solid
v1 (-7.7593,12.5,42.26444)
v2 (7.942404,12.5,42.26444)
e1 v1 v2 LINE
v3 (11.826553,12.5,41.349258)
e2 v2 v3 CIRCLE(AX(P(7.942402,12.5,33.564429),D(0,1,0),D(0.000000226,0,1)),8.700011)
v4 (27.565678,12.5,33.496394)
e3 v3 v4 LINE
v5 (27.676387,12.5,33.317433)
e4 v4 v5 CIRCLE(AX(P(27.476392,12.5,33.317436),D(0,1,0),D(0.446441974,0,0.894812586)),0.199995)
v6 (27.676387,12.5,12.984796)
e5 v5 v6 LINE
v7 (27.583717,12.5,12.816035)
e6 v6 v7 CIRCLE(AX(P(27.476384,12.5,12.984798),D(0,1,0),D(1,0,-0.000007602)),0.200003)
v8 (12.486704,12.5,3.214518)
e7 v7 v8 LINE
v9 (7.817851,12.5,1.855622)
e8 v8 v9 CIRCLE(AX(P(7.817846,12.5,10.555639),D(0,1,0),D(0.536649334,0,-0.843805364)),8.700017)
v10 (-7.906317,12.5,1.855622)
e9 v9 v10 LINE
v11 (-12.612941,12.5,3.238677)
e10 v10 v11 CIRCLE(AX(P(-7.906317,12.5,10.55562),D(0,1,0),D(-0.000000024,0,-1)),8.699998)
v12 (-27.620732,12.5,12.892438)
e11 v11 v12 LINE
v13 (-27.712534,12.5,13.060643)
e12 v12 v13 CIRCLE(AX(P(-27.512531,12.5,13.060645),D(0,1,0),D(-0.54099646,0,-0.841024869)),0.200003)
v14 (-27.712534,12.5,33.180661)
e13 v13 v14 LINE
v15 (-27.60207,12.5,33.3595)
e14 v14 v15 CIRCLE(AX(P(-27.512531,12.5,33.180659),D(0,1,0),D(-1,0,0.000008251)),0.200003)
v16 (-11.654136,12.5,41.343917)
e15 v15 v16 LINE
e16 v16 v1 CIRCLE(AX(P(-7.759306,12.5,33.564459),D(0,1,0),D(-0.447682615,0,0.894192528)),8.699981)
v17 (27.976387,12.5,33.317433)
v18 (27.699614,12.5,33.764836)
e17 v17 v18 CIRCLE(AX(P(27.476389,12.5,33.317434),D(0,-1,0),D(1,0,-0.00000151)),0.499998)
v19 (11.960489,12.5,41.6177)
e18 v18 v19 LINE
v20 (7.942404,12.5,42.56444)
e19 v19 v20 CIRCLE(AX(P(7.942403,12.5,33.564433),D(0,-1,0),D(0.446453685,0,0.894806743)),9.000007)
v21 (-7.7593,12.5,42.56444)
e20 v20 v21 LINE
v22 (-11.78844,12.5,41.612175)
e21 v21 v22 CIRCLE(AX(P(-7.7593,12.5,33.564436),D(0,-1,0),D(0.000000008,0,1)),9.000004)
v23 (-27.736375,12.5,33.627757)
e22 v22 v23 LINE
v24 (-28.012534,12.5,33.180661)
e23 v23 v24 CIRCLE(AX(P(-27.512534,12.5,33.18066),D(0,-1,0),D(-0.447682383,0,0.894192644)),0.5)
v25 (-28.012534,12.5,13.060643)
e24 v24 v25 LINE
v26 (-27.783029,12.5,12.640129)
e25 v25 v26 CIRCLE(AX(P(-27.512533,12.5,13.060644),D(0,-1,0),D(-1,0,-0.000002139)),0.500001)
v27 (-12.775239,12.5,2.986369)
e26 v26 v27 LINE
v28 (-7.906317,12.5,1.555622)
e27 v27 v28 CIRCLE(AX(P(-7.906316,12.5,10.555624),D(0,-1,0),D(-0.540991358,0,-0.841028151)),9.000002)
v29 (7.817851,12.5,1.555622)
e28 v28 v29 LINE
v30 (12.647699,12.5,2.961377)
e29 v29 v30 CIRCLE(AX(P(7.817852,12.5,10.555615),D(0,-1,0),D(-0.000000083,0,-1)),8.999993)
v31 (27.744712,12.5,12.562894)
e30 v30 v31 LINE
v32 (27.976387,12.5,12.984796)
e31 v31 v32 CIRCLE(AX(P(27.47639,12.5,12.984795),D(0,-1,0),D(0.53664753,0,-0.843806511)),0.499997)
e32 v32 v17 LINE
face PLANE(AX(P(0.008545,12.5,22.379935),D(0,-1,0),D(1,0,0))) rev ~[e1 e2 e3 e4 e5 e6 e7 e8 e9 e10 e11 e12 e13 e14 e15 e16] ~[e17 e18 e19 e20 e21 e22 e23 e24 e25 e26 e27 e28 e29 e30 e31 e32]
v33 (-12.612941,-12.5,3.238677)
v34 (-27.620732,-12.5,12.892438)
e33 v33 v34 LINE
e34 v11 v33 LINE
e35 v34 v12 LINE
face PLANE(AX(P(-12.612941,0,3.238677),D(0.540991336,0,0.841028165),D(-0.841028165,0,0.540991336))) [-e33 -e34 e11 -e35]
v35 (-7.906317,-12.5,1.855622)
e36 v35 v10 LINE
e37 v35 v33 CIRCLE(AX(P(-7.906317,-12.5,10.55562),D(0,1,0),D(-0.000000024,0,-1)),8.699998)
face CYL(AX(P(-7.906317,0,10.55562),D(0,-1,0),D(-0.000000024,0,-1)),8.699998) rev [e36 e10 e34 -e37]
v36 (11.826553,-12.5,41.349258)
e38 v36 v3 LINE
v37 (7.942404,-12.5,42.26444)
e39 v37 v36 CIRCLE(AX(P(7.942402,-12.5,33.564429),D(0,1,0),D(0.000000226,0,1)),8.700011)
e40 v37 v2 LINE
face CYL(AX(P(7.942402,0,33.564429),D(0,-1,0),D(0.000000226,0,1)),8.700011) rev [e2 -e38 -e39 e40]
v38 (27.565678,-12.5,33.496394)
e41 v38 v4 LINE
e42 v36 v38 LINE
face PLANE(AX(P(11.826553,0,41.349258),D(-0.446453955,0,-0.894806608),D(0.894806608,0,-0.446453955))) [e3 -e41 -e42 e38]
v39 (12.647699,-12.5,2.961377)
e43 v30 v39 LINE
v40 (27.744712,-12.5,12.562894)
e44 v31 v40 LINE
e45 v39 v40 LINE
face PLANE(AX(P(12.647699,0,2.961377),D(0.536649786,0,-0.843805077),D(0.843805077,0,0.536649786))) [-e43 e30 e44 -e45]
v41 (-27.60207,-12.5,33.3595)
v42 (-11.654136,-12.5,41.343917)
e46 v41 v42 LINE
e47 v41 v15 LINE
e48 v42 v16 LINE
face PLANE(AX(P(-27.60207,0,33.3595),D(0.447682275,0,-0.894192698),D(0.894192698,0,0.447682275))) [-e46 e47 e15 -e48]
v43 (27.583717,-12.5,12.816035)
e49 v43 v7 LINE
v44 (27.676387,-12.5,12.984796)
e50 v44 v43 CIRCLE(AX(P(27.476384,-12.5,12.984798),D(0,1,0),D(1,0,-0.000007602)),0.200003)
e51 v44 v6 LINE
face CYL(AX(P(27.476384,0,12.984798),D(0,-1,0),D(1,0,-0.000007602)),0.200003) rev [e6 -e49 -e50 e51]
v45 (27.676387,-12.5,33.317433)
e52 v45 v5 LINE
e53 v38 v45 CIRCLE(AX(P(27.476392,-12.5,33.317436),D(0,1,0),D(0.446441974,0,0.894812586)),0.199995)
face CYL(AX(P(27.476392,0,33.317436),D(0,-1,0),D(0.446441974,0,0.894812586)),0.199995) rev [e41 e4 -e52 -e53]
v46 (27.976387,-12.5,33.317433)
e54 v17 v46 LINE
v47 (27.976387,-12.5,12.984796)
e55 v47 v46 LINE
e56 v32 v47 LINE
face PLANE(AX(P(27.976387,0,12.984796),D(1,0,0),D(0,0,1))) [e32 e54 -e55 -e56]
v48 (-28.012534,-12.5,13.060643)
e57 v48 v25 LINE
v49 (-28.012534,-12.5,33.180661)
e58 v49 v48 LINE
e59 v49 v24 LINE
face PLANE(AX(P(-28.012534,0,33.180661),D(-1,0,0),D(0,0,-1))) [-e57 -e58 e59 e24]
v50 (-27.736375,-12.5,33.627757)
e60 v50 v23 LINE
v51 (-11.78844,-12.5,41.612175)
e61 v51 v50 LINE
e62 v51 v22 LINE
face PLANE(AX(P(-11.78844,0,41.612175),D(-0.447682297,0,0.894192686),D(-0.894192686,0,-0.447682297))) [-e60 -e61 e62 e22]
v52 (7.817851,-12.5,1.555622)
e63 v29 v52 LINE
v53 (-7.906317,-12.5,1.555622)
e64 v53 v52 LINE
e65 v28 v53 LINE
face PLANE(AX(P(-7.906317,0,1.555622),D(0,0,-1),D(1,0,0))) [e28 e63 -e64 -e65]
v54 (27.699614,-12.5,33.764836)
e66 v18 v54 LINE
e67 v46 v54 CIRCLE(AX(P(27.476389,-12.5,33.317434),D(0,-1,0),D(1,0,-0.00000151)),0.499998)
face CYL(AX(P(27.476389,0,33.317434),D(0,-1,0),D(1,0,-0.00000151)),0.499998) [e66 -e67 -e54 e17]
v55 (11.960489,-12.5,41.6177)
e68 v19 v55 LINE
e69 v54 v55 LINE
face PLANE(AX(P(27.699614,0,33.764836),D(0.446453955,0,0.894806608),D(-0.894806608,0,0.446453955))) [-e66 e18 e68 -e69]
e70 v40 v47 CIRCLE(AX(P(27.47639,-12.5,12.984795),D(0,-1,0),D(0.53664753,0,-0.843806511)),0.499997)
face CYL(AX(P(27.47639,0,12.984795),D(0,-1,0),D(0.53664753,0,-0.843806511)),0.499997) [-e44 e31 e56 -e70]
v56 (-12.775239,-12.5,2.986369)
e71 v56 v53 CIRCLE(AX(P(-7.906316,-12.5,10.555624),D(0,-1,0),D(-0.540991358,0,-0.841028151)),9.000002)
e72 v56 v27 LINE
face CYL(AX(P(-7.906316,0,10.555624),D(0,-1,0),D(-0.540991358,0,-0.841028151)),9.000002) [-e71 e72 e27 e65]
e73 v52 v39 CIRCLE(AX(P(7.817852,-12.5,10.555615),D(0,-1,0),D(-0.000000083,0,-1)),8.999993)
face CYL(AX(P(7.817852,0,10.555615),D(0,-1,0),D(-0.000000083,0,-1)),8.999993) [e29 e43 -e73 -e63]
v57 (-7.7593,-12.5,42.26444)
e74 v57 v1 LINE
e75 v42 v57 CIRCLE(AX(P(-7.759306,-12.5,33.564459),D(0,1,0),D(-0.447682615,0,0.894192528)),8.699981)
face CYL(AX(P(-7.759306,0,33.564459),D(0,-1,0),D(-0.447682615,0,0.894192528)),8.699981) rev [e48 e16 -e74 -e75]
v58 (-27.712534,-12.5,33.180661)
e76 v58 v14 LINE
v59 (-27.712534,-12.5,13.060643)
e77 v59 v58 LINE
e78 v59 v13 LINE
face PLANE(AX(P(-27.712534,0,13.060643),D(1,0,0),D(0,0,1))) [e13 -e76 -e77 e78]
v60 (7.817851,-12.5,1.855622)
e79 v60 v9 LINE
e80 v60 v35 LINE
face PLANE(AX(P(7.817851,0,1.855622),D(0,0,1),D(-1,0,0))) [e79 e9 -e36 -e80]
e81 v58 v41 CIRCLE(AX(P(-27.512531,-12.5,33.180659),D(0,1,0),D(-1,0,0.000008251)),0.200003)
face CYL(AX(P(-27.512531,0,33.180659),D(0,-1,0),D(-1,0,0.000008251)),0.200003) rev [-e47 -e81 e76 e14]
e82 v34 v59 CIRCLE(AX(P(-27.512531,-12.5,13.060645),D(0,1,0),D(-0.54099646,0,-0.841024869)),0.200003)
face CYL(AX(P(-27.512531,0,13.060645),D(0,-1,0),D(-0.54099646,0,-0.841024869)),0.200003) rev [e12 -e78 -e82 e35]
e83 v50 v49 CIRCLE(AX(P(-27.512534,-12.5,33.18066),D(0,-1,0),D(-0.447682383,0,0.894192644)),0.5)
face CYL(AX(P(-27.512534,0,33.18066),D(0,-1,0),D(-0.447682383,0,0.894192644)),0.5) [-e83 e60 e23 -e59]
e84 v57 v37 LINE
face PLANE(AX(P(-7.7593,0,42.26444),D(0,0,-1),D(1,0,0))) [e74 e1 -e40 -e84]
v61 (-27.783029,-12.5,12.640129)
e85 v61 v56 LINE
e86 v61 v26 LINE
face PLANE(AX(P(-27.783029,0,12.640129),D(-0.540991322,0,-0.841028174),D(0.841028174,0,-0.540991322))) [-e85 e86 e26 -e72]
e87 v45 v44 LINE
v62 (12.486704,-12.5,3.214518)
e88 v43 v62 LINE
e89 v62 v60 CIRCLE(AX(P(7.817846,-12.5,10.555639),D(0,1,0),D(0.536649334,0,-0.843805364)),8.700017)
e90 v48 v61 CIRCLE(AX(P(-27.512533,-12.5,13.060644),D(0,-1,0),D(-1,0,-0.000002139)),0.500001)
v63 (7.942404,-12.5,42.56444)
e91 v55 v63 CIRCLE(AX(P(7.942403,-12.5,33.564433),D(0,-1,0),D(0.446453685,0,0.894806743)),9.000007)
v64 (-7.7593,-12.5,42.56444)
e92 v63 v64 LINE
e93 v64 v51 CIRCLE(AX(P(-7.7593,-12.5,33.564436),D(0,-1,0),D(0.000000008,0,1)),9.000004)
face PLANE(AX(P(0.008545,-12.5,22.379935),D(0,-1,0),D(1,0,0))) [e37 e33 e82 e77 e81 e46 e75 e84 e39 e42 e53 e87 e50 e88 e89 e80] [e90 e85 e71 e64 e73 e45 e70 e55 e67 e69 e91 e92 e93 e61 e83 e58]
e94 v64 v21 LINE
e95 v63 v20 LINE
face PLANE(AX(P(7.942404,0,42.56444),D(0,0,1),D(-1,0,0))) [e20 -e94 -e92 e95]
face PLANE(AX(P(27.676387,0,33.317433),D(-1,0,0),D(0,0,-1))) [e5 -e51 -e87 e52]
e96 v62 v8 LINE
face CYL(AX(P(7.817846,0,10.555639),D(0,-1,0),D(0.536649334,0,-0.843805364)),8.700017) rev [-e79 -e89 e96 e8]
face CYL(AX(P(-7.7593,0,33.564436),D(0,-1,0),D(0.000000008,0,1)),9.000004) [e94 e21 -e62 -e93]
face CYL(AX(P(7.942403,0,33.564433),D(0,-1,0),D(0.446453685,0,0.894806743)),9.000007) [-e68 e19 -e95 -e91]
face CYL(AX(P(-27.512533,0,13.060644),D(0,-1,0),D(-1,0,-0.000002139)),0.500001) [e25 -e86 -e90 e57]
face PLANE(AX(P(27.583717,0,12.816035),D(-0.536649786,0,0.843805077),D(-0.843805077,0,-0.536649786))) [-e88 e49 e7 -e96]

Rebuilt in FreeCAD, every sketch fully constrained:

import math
import FreeCAD as App
import Part
import Sketcher
Q = App.Units.Quantity

doc = App.newDocument("Part")
body = doc.addObject("PartDesign::Body", "Body")

# Sketch on XZ plane
sketch1 = doc.addObject("Sketcher::SketchObject", "Sketch")
body.addObject(sketch1)
sketch1.AttachmentSupport = (doc.XZ_Plane, [""])
sketch1.MapMode = "FlatFace"
sketch1.addGeometry([
    Part.ArcOfCircle(Part.Circle(App.Vector(-7.906316, 10.555624, 0), App.Vector(0, 0, 1), 9.000002), math.radians(-122.75115), math.radians(-90.000009)),  # 0
    Part.LineSegment(App.Vector(-7.906317, 1.555622, 0), App.Vector(7.817851, 1.555622, 0)),  # 1
    Part.ArcOfCircle(Part.Circle(App.Vector(7.817852, 10.555615, 0), App.Vector(0, 0, 1), 8.999993), math.radians(-90.000005), math.radians(-57.544115)),  # 2
    Part.LineSegment(App.Vector(12.647699, 2.961377, 0), App.Vector(27.744712, 12.562894, 0)),  # 3
    Part.ArcOfCircle(Part.Circle(App.Vector(27.47639, 12.984795, 0), App.Vector(0, 0, 1), 0.499997), math.radians(-57.544288), math.radians(0.000114)),  # 4
    Part.LineSegment(App.Vector(27.976387, 12.984796, 0), App.Vector(27.976387, 33.317433, 0)),  # 5
    Part.ArcOfCircle(Part.Circle(App.Vector(27.476389, 33.317434, 0), App.Vector(0, 0, 1), 0.499998), math.radians(-0.000087), math.radians(63.483717)),  # 6
    Part.LineSegment(App.Vector(27.699614, 33.764836, 0), App.Vector(11.960489, 41.6177, 0)),  # 7
    Part.ArcOfCircle(Part.Circle(App.Vector(7.942403, 33.564433, 0), App.Vector(0, 0, 1), 9.000007), math.radians(63.483617), math.radians(89.999993)),  # 8
    Part.LineSegment(App.Vector(7.942404, 42.56444, 0), App.Vector(-7.7593, 42.56444, 0)),  # 9
    Part.ArcOfCircle(Part.Circle(App.Vector(-7.7593, 33.564436, 0), App.Vector(0, 0, 1), 9.000004), math.radians(90), math.radians(116.595062)),  # 10
    Part.LineSegment(App.Vector(-11.78844, 41.612175, 0), App.Vector(-27.736375, 33.627757, 0)),  # 11
    Part.ArcOfCircle(Part.Circle(App.Vector(-27.512534, 33.18066, 0), App.Vector(0, 0, 1), 0.5), math.radians(116.595085), math.radians(179.999928)),  # 12
    Part.LineSegment(App.Vector(-28.012534, 33.180661, 0), App.Vector(-28.012534, 13.060643, 0)),  # 13
    Part.ArcOfCircle(Part.Circle(App.Vector(-27.512533, 13.060644, 0), App.Vector(0, 0, 1), 0.500001), math.radians(-179.999877), math.radians(-122.751122)),  # 14
    Part.LineSegment(App.Vector(-27.783029, 12.640129, 0), App.Vector(-12.775239, 2.986369, 0)),  # 15
    Part.ArcOfCircle(Part.Circle(App.Vector(-7.906317, 10.55562, 0), App.Vector(0, 0, 1), 8.699998), math.radians(-122.751152), math.radians(-90.000001)),  # 16
    Part.LineSegment(App.Vector(-12.612941, 3.238677, 0), App.Vector(-27.620732, 12.892438, 0)),  # 17
    Part.ArcOfCircle(Part.Circle(App.Vector(-27.512531, 13.060645, 0), App.Vector(0, 0, 1), 0.200003), math.radians(-179.999329), math.radians(-122.751498)),  # 18
    Part.LineSegment(App.Vector(-27.712534, 13.060643, 0), App.Vector(-27.712534, 33.180661, 0)),  # 19
    Part.ArcOfCircle(Part.Circle(App.Vector(-27.512531, 33.180659, 0), App.Vector(0, 0, 1), 0.200003), math.radians(116.595472), math.radians(179.999527)),  # 20
    Part.LineSegment(App.Vector(-27.60207, 33.3595, 0), App.Vector(-11.654136, 41.343917, 0)),  # 21
    Part.ArcOfCircle(Part.Circle(App.Vector(-7.759306, 33.564459, 0), App.Vector(0, 0, 1), 8.699981), math.radians(89.999962), math.radians(116.5951)),  # 22
    Part.LineSegment(App.Vector(-7.7593, 42.26444, 0), App.Vector(7.942404, 42.26444, 0)),  # 23
    Part.ArcOfCircle(Part.Circle(App.Vector(7.942402, 33.564429, 0), App.Vector(0, 0, 1), 8.700011), math.radians(63.483624), math.radians(89.999987)),  # 24
    Part.LineSegment(App.Vector(11.826553, 41.349258, 0), App.Vector(27.565678, 33.496394, 0)),  # 25
    Part.ArcOfCircle(Part.Circle(App.Vector(27.476392, 33.317436, 0), App.Vector(0, 0, 1), 0.199995), math.radians(-0.000772), math.radians(63.484367)),  # 26
    Part.LineSegment(App.Vector(27.676387, 33.317433, 0), App.Vector(27.676387, 12.984796, 0)),  # 27
    Part.ArcOfCircle(Part.Circle(App.Vector(27.476384, 12.984798, 0), App.Vector(0, 0, 1), 0.200003), math.radians(-57.543681), math.radians(-0.000435)),  # 28
    Part.LineSegment(App.Vector(27.583717, 12.816035, 0), App.Vector(12.486704, 3.214518, 0)),  # 29
    Part.ArcOfCircle(Part.Circle(App.Vector(7.817846, 10.555639, 0), App.Vector(0, 0, 1), 8.700017), math.radians(-89.999965), math.radians(-57.544166)),  # 30
    Part.LineSegment(App.Vector(7.817851, 1.855622, 0), App.Vector(-7.906317, 1.855622, 0)),  # 31
], False)
sketch1.addConstraint([
    Sketcher.Constraint("Coincident", 0, 2, 1, 1),
    Sketcher.Constraint("Coincident", 1, 2, 2, 1),
    Sketcher.Constraint("Coincident", 2, 2, 3, 1),
    Sketcher.Constraint("Coincident", 3, 2, 4, 1),
    Sketcher.Constraint("Coincident", 4, 2, 5, 1),
    Sketcher.Constraint("Coincident", 5, 2, 6, 1),
    Sketcher.Constraint("Coincident", 6, 2, 7, 1),
    Sketcher.Constraint("Coincident", 7, 2, 8, 1),
    Sketcher.Constraint("Coincident", 8, 2, 9, 1),
    Sketcher.Constraint("Coincident", 9, 2, 10, 1),
    Sketcher.Constraint("Coincident", 10, 2, 11, 1),
    Sketcher.Constraint("Coincident", 11, 2, 12, 1),
    Sketcher.Constraint("Coincident", 12, 2, 13, 1),
    Sketcher.Constraint("Coincident", 13, 2, 14, 1),
    Sketcher.Constraint("Coincident", 14, 2, 15, 1),
    Sketcher.Constraint("Coincident", 15, 2, 0, 1),
    Sketcher.Constraint("Coincident", 16, 1, 17, 1),
    Sketcher.Constraint("Coincident", 17, 2, 18, 2),
    Sketcher.Constraint("Coincident", 18, 1, 19, 1),
    Sketcher.Constraint("Coincident", 19, 2, 20, 2),
    Sketcher.Constraint("Coincident", 20, 1, 21, 1),
    Sketcher.Constraint("Coincident", 21, 2, 22, 2),
    Sketcher.Constraint("Coincident", 22, 1, 23, 1),
    Sketcher.Constraint("Coincident", 23, 2, 24, 2),
    Sketcher.Constraint("Coincident", 24, 1, 25, 1),
    Sketcher.Constraint("Coincident", 25, 2, 26, 2),
    Sketcher.Constraint("Coincident", 26, 1, 27, 1),
    Sketcher.Constraint("Coincident", 27, 2, 28, 2),
    Sketcher.Constraint("Coincident", 28, 1, 29, 1),
    Sketcher.Constraint("Coincident", 29, 2, 30, 2),
    Sketcher.Constraint("Coincident", 30, 1, 31, 1),
    Sketcher.Constraint("Coincident", 31, 2, 16, 2),
    Sketcher.Constraint("Horizontal", 1),
    Sketcher.Constraint("Vertical", 5),
    Sketcher.Constraint("Horizontal", 9),
    Sketcher.Constraint("Vertical", 13),
    Sketcher.Constraint("Vertical", 19),
    Sketcher.Constraint("Horizontal", 23),
    Sketcher.Constraint("Vertical", 27),
    Sketcher.Constraint("Horizontal", 31),
    Sketcher.Constraint("Coincident", 16, 3, 0, 3),
    Sketcher.Constraint("Coincident", 18, 3, 14, 3),
    Sketcher.Constraint("Coincident", 20, 3, 12, 3),
    Sketcher.Constraint("Coincident", 24, 3, 8, 3),
    Sketcher.Constraint("Coincident", 26, 3, 6, 3),
    Sketcher.Constraint("Coincident", 28, 3, 4, 3),
    Sketcher.Constraint("Radius", 6, Q("0.499998 mm")),
    Sketcher.Constraint("Radius", 12, Q("0.5 mm")),
    Sketcher.Constraint("Radius", 14, Q("0.500001 mm")),
    Sketcher.Constraint("Radius", 16, Q("8.699998 mm")),
    Sketcher.Constraint("DistanceY", 0, 2, 16, 3, Q("8.999998 mm")),
    Sketcher.Constraint("DistanceX", 18, 1, 14, 3, Q("0.200001 mm")),
    Sketcher.Constraint("DistanceY", 22, 1, 9, 2, Q("0.3 mm")),
    Sketcher.Constraint("DistanceX", 6, 3, 26, 1, Q("0.199998 mm")),
    Sketcher.Constraint("Radius", 22, Q("8.699981 mm")),
    Sketcher.Constraint("Radius", 24, Q("8.700011 mm")),
    Sketcher.Constraint("Radius", 2, Q("8.999993 mm")),
    Sketcher.Constraint("Radius", 4, Q("0.499997 mm")),
    Sketcher.Constraint("Radius", 10, Q("9.000004 mm")),
    Sketcher.Constraint("Radius", 30, Q("8.700017 mm")),
    Sketcher.Constraint("DistanceY", 6, 3, 8, 3, Q("0.247 mm")),
    Sketcher.Constraint("DistanceY", 5, 2, 8, 3, Q("0.247 mm")),
    Sketcher.Constraint("DistanceY", 13, 2, 13, 1, Q("20.120018 mm")),
    Sketcher.Constraint("DistanceY", 19, 1, 19, 2, Q("20.120018 mm")),
    Sketcher.Constraint("DistanceX", 10, 3, -1, 1, Q("7.7593 mm")),
    Sketcher.Constraint("DistanceX", -1, 1, 2, 2, Q("12.647699 mm")),
    Sketcher.Constraint("DistanceY", -1, 1, 7, 2, Q("41.6177 mm")),
    Sketcher.Constraint("DistanceX", 9, 2, -1, 1, Q("7.7593 mm")),
    Sketcher.Constraint("DistanceY", -1, 1, 20, 1, Q("33.3595 mm")),
    Sketcher.Constraint("DistanceX", 22, 1, -1, 1, Q("7.7593 mm")),
    Sketcher.Constraint("DistanceY", 20, 3, 22, 3, Q("0.3838 mm")),
    Sketcher.Constraint("DistanceY", 3, 2, 4, 3, Q("0.421901 mm")),
    Sketcher.Constraint("DistanceY", 3, 2, 4, 2, Q("0.421902 mm")),
    Sketcher.Constraint("DistanceY", 26, 3, 6, 2, Q("0.4474 mm")),
    Sketcher.Constraint("DistanceX", 7, 2, 6, 3, Q("15.5159 mm")),
    Sketcher.Constraint("DistanceY", 22, 3, 11, 2, Q("0.063298 mm")),
    Sketcher.Constraint("DistanceX", 17, 2, 14, 3, Q("0.108199 mm")),
    Sketcher.Constraint("DistanceY", 3, 2, 27, 2, Q("0.421902 mm")),
    Sketcher.Constraint("Distance", 3, Q("17.891588 mm")),
    Sketcher.Constraint("Distance", 11, Q("17.835009 mm")),
    Sketcher.Constraint("Distance", 21, Q("17.835008 mm")),
    Sketcher.Constraint("Distance", 29, Q("17.891588 mm")),
    Sketcher.Constraint("DistanceX", 1, 1, 1, 2, Q("15.724168 mm")),
    Sketcher.Constraint("DistanceX", 9, 2, 9, 1, Q("15.701704 mm")),
    Sketcher.Constraint("DistanceX", 23, 1, 23, 2, Q("15.701704 mm")),
    Sketcher.Constraint("DistanceX", 31, 2, 31, 1, Q("15.724168 mm")),
    Sketcher.Constraint("DistanceY", 5, 1, 5, 2, Q("20.332637 mm")),
    Sketcher.Constraint("DistanceY", 27, 2, 27, 1, Q("20.332637 mm")),
    Sketcher.Constraint("DistanceX", -1, 1, 2, 3, Q("7.817852 mm")),
    Sketcher.Constraint("DistanceX", -1, 1, 4, 3, Q("27.47639 mm")),
    Sketcher.Constraint("DistanceY", -1, 1, 12, 3, Q("33.18066 mm")),
    Sketcher.Constraint("DistanceX", 18, 3, -1, 1, Q("27.512531 mm")),
    Sketcher.Constraint("DistanceX", -1, 1, 1, 2, Q("7.817851 mm")),
    Sketcher.Constraint("DistanceY", -1, 1, 12, 2, Q("33.180661 mm")),
    Sketcher.Constraint("DistanceX", 14, 2, -1, 1, Q("27.783029 mm")),
    Sketcher.Constraint("DistanceY", -1, 1, 14, 2, Q("12.640129 mm")),
    Sketcher.Constraint("DistanceX", 15, 2, -1, 1, Q("12.775239 mm")),
    Sketcher.Constraint("DistanceY", -1, 1, 15, 2, Q("2.986369 mm")),
    Sketcher.Constraint("DistanceX", 16, 1, -1, 1, Q("12.612941 mm")),
    Sketcher.Constraint("DistanceY", -1, 1, 19, 2, Q("33.180661 mm")),
    Sketcher.Constraint("DistanceY", -1, 1, 29, 2, Q("3.214518 mm")),
    Sketcher.Constraint("DistanceX", -1, 1, 30, 1, Q("7.817851 mm")),
    Sketcher.Constraint("DistanceX", 22, 3, 8, 3, Q("15.701709 mm")),
    Sketcher.Constraint("DistanceX", 0, 3, 30, 3, Q("15.724161 mm")),
    Sketcher.Constraint("DistanceX", 23, 2, 24, 1, Q("3.884149 mm")),
    Sketcher.Constraint("DistanceY", 26, 3, 25, 2, Q("0.178958 mm")),
])
pad1 = doc.addObject("PartDesign::Pad", "Pad")
body.addObject(pad1)
pad1.Profile = sketch1
pad1.Length = 25
pad1.Midplane = True

doc.recompute()
